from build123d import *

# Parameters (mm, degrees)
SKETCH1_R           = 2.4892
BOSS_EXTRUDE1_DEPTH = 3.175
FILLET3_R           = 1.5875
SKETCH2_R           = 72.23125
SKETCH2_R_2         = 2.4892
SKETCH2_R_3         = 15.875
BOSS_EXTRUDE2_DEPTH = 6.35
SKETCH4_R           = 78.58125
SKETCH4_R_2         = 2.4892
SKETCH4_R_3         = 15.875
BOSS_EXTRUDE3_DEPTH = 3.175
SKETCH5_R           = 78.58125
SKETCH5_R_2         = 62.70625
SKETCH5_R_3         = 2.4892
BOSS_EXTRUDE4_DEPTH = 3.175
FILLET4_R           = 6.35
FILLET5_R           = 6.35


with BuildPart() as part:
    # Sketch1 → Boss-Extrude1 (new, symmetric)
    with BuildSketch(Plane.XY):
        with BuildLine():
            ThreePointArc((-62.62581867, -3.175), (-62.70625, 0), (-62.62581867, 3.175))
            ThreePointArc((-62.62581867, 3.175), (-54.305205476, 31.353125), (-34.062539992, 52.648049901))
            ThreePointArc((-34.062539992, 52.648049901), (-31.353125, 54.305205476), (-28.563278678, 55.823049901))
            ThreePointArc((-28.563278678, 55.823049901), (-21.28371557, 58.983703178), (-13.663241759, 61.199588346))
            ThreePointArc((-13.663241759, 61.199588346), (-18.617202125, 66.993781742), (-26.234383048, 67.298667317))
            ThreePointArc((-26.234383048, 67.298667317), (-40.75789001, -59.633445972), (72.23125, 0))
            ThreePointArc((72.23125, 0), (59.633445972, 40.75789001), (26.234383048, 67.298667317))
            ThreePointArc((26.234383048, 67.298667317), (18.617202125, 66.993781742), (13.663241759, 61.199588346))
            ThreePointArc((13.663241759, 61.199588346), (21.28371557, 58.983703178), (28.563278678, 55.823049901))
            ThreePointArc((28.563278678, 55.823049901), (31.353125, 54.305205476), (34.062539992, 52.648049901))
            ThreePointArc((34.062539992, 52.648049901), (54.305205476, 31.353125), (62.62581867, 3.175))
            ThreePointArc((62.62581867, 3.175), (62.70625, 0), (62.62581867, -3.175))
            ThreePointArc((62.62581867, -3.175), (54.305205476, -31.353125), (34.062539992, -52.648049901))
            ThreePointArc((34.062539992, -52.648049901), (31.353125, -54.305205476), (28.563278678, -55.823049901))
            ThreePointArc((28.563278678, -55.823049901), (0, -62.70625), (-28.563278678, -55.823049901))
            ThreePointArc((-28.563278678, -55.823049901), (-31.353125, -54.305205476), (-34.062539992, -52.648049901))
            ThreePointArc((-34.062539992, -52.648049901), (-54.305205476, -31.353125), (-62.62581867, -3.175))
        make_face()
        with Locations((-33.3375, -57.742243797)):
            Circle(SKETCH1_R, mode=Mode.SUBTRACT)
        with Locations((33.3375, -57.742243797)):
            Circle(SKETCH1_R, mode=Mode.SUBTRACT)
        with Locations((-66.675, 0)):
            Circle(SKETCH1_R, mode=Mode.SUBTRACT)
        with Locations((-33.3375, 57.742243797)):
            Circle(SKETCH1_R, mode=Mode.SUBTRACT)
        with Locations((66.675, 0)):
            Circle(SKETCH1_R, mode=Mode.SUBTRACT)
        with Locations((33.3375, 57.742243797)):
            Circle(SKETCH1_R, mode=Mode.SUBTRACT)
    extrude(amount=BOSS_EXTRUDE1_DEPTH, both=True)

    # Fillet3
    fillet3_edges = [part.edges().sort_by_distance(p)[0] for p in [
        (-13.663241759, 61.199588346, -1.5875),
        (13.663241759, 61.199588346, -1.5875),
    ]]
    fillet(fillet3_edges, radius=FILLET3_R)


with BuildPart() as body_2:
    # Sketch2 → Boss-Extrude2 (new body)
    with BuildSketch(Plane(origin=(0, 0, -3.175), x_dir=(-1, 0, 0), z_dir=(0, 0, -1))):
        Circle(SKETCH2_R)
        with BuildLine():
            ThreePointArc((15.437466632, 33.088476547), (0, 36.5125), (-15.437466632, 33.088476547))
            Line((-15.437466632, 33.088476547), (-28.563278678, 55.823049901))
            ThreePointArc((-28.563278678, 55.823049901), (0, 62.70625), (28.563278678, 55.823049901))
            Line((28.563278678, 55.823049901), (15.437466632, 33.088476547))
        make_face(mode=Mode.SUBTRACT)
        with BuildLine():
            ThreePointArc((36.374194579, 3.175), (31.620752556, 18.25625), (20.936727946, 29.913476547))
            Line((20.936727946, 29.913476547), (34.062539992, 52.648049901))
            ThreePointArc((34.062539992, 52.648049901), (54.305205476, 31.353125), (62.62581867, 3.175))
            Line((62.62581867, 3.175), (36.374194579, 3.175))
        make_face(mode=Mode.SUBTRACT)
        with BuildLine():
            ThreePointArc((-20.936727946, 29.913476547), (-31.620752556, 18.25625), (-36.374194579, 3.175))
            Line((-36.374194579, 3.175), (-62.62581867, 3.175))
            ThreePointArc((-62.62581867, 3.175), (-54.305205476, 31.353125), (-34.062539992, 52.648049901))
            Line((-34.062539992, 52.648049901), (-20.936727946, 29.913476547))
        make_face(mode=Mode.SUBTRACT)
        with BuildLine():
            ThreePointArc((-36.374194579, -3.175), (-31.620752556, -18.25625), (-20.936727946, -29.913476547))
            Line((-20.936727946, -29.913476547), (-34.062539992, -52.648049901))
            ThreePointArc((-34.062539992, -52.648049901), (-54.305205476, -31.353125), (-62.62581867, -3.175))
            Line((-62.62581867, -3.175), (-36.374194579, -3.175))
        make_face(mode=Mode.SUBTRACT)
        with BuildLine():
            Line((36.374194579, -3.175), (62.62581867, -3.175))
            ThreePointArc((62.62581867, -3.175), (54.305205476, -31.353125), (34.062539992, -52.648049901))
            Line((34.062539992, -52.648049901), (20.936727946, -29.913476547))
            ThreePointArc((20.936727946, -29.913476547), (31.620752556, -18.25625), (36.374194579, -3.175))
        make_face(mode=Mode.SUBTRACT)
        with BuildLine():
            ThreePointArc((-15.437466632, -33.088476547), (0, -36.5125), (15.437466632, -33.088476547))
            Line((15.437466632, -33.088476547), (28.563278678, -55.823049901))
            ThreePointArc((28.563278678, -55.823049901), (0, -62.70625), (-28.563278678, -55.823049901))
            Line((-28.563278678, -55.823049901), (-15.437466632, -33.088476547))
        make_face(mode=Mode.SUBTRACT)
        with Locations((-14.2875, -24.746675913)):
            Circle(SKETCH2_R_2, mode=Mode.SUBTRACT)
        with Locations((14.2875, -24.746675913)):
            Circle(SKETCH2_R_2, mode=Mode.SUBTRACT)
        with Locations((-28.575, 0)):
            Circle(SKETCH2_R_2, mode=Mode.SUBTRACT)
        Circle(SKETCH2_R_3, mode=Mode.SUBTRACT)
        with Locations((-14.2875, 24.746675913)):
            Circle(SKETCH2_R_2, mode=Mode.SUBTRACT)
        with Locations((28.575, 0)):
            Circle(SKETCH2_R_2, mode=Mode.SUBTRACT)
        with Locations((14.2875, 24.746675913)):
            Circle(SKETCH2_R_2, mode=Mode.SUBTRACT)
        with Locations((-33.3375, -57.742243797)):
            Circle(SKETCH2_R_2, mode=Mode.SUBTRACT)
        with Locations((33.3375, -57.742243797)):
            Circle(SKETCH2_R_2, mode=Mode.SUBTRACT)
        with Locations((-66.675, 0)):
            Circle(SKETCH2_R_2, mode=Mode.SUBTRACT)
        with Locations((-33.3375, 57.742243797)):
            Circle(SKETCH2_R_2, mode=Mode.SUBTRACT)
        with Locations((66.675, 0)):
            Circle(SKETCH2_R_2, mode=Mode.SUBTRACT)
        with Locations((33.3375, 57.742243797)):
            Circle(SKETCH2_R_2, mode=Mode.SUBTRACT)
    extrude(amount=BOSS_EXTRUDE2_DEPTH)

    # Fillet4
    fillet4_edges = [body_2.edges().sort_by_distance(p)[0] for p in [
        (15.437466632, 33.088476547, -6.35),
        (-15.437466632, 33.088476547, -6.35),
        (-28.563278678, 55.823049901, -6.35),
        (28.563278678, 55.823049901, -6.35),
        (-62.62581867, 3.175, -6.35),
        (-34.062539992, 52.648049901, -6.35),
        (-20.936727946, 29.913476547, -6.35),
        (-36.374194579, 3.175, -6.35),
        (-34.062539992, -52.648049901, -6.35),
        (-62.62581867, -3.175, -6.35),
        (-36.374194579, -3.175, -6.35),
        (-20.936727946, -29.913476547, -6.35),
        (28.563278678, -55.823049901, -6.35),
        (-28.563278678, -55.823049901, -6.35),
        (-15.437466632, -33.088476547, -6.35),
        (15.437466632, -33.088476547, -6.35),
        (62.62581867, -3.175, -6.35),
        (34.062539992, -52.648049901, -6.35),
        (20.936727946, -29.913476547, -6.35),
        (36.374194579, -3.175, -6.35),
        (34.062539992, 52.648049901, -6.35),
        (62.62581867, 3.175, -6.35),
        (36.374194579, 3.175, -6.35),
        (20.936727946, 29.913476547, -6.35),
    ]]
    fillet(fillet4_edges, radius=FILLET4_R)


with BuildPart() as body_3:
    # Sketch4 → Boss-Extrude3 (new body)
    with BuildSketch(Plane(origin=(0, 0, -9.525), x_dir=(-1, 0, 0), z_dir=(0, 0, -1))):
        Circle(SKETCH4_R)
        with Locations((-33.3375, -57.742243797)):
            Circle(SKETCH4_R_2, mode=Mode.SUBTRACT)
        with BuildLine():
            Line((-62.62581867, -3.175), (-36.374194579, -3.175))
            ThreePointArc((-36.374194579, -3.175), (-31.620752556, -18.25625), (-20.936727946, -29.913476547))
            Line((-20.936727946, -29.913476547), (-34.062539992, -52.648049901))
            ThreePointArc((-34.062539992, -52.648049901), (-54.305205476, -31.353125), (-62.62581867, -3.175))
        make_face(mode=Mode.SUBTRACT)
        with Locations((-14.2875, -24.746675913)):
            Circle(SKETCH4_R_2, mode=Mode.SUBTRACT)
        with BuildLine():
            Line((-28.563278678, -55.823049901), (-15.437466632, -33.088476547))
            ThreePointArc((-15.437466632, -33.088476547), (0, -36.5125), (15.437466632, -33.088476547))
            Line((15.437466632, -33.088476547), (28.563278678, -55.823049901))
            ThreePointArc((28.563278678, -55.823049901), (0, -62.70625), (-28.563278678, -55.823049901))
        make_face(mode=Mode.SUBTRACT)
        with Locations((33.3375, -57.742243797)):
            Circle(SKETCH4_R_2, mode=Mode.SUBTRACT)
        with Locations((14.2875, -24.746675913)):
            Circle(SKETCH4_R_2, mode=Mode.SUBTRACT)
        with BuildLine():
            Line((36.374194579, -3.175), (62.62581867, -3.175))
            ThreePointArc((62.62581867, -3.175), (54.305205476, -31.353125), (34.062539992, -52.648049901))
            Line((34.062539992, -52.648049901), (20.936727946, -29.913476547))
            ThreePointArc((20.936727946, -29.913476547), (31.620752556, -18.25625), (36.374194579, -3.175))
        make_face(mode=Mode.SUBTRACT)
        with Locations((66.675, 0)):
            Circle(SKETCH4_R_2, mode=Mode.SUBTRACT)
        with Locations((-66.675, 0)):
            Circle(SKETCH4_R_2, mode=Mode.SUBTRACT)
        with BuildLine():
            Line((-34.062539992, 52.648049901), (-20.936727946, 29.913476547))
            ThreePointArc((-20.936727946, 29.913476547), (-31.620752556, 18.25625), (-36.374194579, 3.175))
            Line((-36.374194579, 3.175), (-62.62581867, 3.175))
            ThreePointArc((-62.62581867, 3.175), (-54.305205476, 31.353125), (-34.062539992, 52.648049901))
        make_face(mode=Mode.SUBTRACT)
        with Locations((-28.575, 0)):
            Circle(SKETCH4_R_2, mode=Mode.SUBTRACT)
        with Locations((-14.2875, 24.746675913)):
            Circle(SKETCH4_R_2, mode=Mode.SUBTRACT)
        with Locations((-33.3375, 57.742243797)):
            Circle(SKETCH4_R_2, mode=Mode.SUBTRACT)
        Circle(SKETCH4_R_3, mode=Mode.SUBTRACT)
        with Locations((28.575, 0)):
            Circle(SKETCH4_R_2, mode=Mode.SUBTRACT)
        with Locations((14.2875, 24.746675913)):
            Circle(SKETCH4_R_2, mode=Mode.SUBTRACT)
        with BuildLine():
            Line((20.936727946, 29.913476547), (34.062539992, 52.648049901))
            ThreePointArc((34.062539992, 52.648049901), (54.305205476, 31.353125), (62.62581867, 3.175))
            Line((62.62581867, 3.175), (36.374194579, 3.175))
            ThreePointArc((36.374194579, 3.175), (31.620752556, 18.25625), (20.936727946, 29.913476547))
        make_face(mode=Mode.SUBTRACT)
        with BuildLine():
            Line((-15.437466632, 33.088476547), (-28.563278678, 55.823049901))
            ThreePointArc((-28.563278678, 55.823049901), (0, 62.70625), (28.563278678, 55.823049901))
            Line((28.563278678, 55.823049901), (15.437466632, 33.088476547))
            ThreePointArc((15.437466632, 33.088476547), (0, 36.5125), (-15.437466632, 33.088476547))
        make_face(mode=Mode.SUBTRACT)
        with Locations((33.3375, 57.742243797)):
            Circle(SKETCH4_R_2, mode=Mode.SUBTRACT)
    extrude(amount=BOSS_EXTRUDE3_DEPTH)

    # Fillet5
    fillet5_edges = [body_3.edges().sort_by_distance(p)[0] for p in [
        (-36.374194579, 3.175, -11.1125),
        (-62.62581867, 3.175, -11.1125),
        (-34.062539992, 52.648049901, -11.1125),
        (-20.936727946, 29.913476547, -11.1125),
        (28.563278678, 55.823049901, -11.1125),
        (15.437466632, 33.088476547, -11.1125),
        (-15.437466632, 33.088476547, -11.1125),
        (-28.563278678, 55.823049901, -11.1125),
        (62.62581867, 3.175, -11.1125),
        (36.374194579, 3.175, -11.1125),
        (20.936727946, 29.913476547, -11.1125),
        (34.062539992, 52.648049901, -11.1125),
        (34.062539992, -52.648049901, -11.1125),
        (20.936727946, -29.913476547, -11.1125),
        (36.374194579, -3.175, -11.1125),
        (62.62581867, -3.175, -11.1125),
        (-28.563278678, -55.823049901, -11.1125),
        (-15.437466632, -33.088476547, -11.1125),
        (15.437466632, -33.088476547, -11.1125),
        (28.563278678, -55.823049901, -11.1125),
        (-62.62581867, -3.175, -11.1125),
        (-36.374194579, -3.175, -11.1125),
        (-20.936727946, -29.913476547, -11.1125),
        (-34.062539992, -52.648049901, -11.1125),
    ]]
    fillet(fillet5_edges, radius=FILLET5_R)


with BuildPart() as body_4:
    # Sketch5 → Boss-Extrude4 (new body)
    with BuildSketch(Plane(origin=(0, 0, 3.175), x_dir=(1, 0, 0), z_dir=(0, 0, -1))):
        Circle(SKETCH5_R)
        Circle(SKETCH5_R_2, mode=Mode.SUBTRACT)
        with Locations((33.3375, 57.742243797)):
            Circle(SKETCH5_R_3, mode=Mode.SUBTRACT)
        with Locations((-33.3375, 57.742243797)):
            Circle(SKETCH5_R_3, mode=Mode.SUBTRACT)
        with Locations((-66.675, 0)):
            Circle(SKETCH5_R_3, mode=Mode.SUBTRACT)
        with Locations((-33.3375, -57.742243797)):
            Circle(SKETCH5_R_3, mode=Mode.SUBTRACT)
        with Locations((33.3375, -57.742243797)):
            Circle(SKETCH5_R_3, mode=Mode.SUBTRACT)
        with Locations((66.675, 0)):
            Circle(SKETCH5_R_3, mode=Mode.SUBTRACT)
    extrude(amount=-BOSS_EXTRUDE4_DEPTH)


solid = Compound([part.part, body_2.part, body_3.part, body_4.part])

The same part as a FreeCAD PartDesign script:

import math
import FreeCAD as App
import Part
import Sketcher
from FreeCAD import Vector
Q = App.Units.Quantity


def edges_at(feature, points):
    """Names of the edges that pass closest to the given points."""
    edges = feature.Shape.Edges
    near = lambda p: min(range(len(edges)), key=lambda i: edges[i].distToShape(Part.Vertex(*p))[0])
    return sorted({f"Edge{near(p) + 1}" for p in points})

doc = App.newDocument("Part")
body = doc.addObject("PartDesign::Body", "Body")

sketch1 = body.newObject("Sketcher::SketchObject", "Sketch")
sketch1.AttachmentSupport = (doc.getObject("XY_Plane"), [""])
sketch1.MapMode = "FlatFace"
sketch1.addGeometry([
    Part.ArcOfCircle(Part.Circle(Vector(0, 0, 0), Vector(0, 0, 1), 62.7), math.radians(177.1), math.radians(182.9)),
    Part.ArcOfCircle(Part.Circle(Vector(0, 0, 0), Vector(0, 0, 1), 62.7), math.radians(123), math.radians(177)),
    Part.ArcOfCircle(Part.Circle(Vector(0, 0, 0), Vector(0, 0, 1), 62.7), math.radians(117.1), math.radians(122.9)),
    Part.ArcOfCircle(Part.Circle(Vector(0, 0, 0), Vector(0, 0, 1), 62.7), math.radians(102.59), math.radians(117.1)),
    Part.ArcOfCircle(Part.Circle(Vector(-22.8, 58.4, 0), Vector(0, 0, 1), 9.5), math.radians(17), math.radians(111)),
    Part.ArcOfCircle(Part.Circle(Vector(0, 0, 0), Vector(0, 0, 1), 72.2), math.radians(111), math.radians(360)),
    Part.ArcOfCircle(Part.Circle(Vector(0, 0, 0), Vector(0, 0, 1), 72.2), math.radians(0), math.radians(69)),
    Part.ArcOfCircle(Part.Circle(Vector(22.8, 58.4, 0), Vector(0, 0, 1), 9.5), math.radians(69), math.radians(163)),
    Part.ArcOfCircle(Part.Circle(Vector(0, 0, 0), Vector(0, 0, 1), 62.7), math.radians(62.9), math.radians(77.41)),
    Part.ArcOfCircle(Part.Circle(Vector(0, 0, 0), Vector(0, 0, 1), 62.7), math.radians(57.1), math.radians(62.9)),
    Part.ArcOfCircle(Part.Circle(Vector(0, 0, 0), Vector(0, 0, 1), 62.7), math.radians(3), math.radians(57)),
    Part.ArcOfCircle(Part.Circle(Vector(0, 0, 0), Vector(0, 0, 1), 62.7), math.radians(-2.9), math.radians(2.9)),
    Part.ArcOfCircle(Part.Circle(Vector(0, 0, 0), Vector(0, 0, 1), 62.7), math.radians(-57), math.radians(-3)),
    Part.ArcOfCircle(Part.Circle(Vector(0, 0, 0), Vector(0, 0, 1), 62.7), math.radians(-62.9), math.radians(-57.1)),
    Part.ArcOfCircle(Part.Circle(Vector(0, 0, 0), Vector(0, 0, 1), 62.7), math.radians(-117), math.radians(-63)),
    Part.ArcOfCircle(Part.Circle(Vector(0, 0, 0), Vector(0, 0, 1), 62.7), math.radians(-122.9), math.radians(-117.1)),
    Part.ArcOfCircle(Part.Circle(Vector(0, 0, 0), Vector(0, 0, 1), 62.7), math.radians(-177), math.radians(-123)),
    Part.Circle(Vector(-33.3, -57.7, 0), Vector(0, 0, 1), 2.5),
    Part.Circle(Vector(-66.7, 0, 0), Vector(0, 0, 1), 2.5),
    Part.Circle(Vector(33.3, -57.7, 0), Vector(0, 0, 1), 2.5),
    Part.Circle(Vector(66.7, 0, 0), Vector(0, 0, 1), 2.5),
    Part.Circle(Vector(-33.3, 57.7, 0), Vector(0, 0, 1), 2.5),
    Part.Circle(Vector(33.3, 57.7, 0), Vector(0, 0, 1), 2.5),
], False)
sketch1.addConstraint([
    Sketcher.Constraint("Tangent", 0, 1, 1, 2),
    Sketcher.Constraint("Tangent", 1, 1, 2, 2),
    Sketcher.Constraint("Tangent", 2, 1, 3, 2),
    Sketcher.Constraint("Coincident", 3, 1, 4, 1),
    Sketcher.Constraint("Tangent", 4, 2, 5, 1),
    Sketcher.Constraint("Tangent", 5, 2, 6, 1),
    Sketcher.Constraint("Tangent", 6, 2, 7, 1),
    Sketcher.Constraint("Coincident", 7, 2, 8, 2),
    Sketcher.Constraint("Tangent", 8, 1, 9, 2),
    Sketcher.Constraint("Tangent", 9, 1, 10, 2),
    Sketcher.Constraint("Tangent", 10, 1, 11, 2),
    Sketcher.Constraint("Tangent", 11, 1, 12, 2),
    Sketcher.Constraint("Tangent", 12, 1, 13, 2),
    Sketcher.Constraint("Tangent", 13, 1, 14, 2),
    Sketcher.Constraint("Tangent", 14, 1, 15, 2),
    Sketcher.Constraint("Tangent", 15, 1, 16, 2),
    Sketcher.Constraint("Tangent", 16, 1, 0, 2),
    Sketcher.Constraint("Coincident", 0, 3, -1, 1),
    Sketcher.Constraint("Coincident", 2, 3, -1, 1),
    Sketcher.Constraint("Coincident", 5, 3, -1, 1),
    Sketcher.Constraint("Coincident", 8, 3, -1, 1),
    Sketcher.Constraint("Coincident", 10, 3, -1, 1),
    Sketcher.Constraint("Coincident", 12, 3, -1, 1),
    Sketcher.Constraint("Coincident", 14, 3, -1, 1),
    Sketcher.Constraint("Equal", 2, 3),
    Sketcher.Constraint("Equal", 5, 6),
    Sketcher.Constraint("Equal", 4, 7),
    Sketcher.Constraint("Equal", 3, 8),
    Sketcher.Constraint("Equal", 17, 18),
    Sketcher.Constraint("Equal", 18, 19),
    Sketcher.Constraint("Equal", 19, 20),
    Sketcher.Constraint("Equal", 20, 21),
    Sketcher.Constraint("Equal", 21, 22),
    Sketcher.Constraint("Symmetric", 18, 3, 20, 3, -1, 1),
    Sketcher.Constraint("Symmetric", 19, 3, 21, 3, -1, 1),
    Sketcher.Constraint("Symmetric", 17, 3, 22, 3, -1, 1),
    Sketcher.Constraint("Symmetric", 17, 3, 19, 3, -2),
    Sketcher.Constraint("PointOnObject", 18, 3, -1),
    Sketcher.Constraint("PointOnObject", 5, 2, -1),
    Sketcher.Constraint("Horizontal", 4, 3, 7, 3),
    Sketcher.Constraint("Horizontal", 2, 1, 8, 1),
    Sketcher.Constraint("Horizontal", 1, 1, 9, 1),
    Sketcher.Constraint("Horizontal", 0, 1, 10, 1),
    Sketcher.Constraint("Horizontal", 13, 1, 14, 1),
    Sketcher.Constraint("Horizontal", 12, 1, 15, 1),
    Sketcher.Constraint("Horizontal", 11, 1, 16, 1),
    Sketcher.Constraint("Vertical", 10, 1, 11, 1),
    Sketcher.Constraint("Vertical", 9, 1, 12, 1),
    Sketcher.Constraint("Vertical", 8, 1, 13, 1),
    Sketcher.Constraint("Diameter", 17, Q("0.196 in")),
    Sketcher.Constraint("Radius", 0, Q("2.46875 in")),
    Sketcher.Constraint("Radius", 4, Q("0.375 in")),
    Sketcher.Constraint("Radius", 5, Q("2.84375 in")),
    Sketcher.Constraint("DistanceY", 11, 1, 10, 1, Q("0.25 in")),
    Sketcher.Constraint("DistanceX", 17, 3, -1, 1, Q("1.3125 in")),
    Sketcher.Constraint("DistanceX", 18, 3, -1, 1, Q("2.625 in")),
    Sketcher.Constraint("DistanceY", 1, 1, 2, 1, Q("0.125 in")),
    Sketcher.Constraint("DistanceX", 4, 2, 4, 3, Q("0.1362 in")),
    Sketcher.Constraint("DistanceX", 1, 1, 3, 1, Q("20.399298 mm")),
    Sketcher.Constraint("DistanceY", 17, 3, -1, 1, Q("57.742244 mm")),
])
pad1 = body.newObject("PartDesign::Pad", "Pad")
pad1.Profile = sketch1
pad1.Length = Q("0.25 in")
pad1.Midplane = True
doc.recompute()

fillet = body.newObject("PartDesign::Fillet", "Fillet")
fillet.Base = (pad1, edges_at(pad1, [(-13.663, 61.2, 0), (13.663, 61.2, 0)]))
fillet.Radius = Q("0.0625 in")
body2 = doc.addObject("PartDesign::Body", "Body001")

sketch2 = body2.newObject("Sketcher::SketchObject", "Sketch001")
sketch2.AttachmentSupport = (doc.getObject("XY_Plane001"), [""])
sketch2.MapMode = "FlatFace"
sketch2.AttachmentOffset = App.Placement(Vector(0, 0, -0.125 * 25.4), App.Rotation())
sketch2.addGeometry([
    Part.Circle(Vector(0, 0, 0), Vector(0, 0, 1), 72.2),
    Part.Circle(Vector(33.3, -57.7, 0), Vector(0, 0, 1), 2.5),
    Part.LineSegment(Vector(62.6, -3.2, 0), Vector(36.4, -3.2, 0)),
    Part.ArcOfCircle(Part.Circle(Vector(0, 0, 0), Vector(0, 0, 1), 36.5), math.radians(-55), math.radians(-5)),
    Part.LineSegment(Vector(20.9, -29.9, 0), Vector(34.1, -52.6, 0)),
    Part.ArcOfCircle(Part.Circle(Vector(0, 0, 0), Vector(0, 0, 1), 62.7), math.radians(-57), math.radians(-3)),
    Part.Circle(Vector(14.3, -24.7, 0), Vector(0, 0, 1), 2.5),
    Part.LineSegment(Vector(28.6, -55.8, 0), Vector(15.4, -33.1, 0)),
    Part.ArcOfCircle(Part.Circle(Vector(0, 0, 0), Vector(0, 0, 1), 36.5), math.radians(-115), math.radians(-65)),
    Part.LineSegment(Vector(-15.4, -33.1, 0), Vector(-28.6, -55.8, 0)),
    Part.ArcOfCircle(Part.Circle(Vector(0, 0, 0), Vector(0, 0, 1), 62.7), math.radians(-117), math.radians(-63)),
    Part.Circle(Vector(-33.3, -57.7, 0), Vector(0, 0, 1), 2.5),
    Part.Circle(Vector(-14.3, -24.7, 0), Vector(0, 0, 1), 2.5),
    Part.ArcOfCircle(Part.Circle(Vector(0, 0, 0), Vector(0, 0, 1), 36.5), math.radians(-175), math.radians(-125)),
    Part.LineSegment(Vector(-36.4, -3.2, 0), Vector(-62.6, -3.2, 0)),
    Part.ArcOfCircle(Part.Circle(Vector(0, 0, 0), Vector(0, 0, 1), 62.7), math.radians(-177), math.radians(-123)),
    Part.LineSegment(Vector(-34.1, -52.6, 0), Vector(-20.9, -29.9, 0)),
    Part.Circle(Vector(66.7, 0, 0), Vector(0, 0, 1), 2.5),
    Part.LineSegment(Vector(34.1, 52.6, 0), Vector(20.9, 29.9, 0)),
    Part.ArcOfCircle(Part.Circle(Vector(0, 0, 0), Vector(0, 0, 1), 36.5), math.radians(5), math.radians(55)),
    Part.LineSegment(Vector(36.4, 3.2, 0), Vector(62.6, 3.2, 0)),
    Part.ArcOfCircle(Part.Circle(Vector(0, 0, 0), Vector(0, 0, 1), 62.7), math.radians(3), math.radians(57)),
    Part.Circle(Vector(28.6, 0, 0), Vector(0, 0, 1), 2.5),
    Part.Circle(Vector(14.3, 24.7, 0), Vector(0, 0, 1), 2.5),
    Part.Circle(Vector(33.3, 57.7, 0), Vector(0, 0, 1), 2.5),
    Part.Circle(Vector(0, 0, 0), Vector(0, 0, 1), 15.9),
    Part.Circle(Vector(-28.6, 0, 0), Vector(0, 0, 1), 2.5),
    Part.Circle(Vector(-14.3, 24.7, 0), Vector(0, 0, 1), 2.5),
    Part.Circle(Vector(-66.7, 0, 0), Vector(0, 0, 1), 2.5),
    Part.LineSegment(Vector(-62.6, 3.2, 0), Vector(-36.4, 3.2, 0)),
    Part.ArcOfCircle(Part.Circle(Vector(0, 0, 0), Vector(0, 0, 1), 36.5), math.radians(125), math.radians(175)),
    Part.LineSegment(Vector(-20.9, 29.9, 0), Vector(-34.1, 52.6, 0)),
    Part.ArcOfCircle(Part.Circle(Vector(0, 0, 0), Vector(0, 0, 1), 62.7), math.radians(123), math.radians(177)),
    Part.LineSegment(Vector(-28.6, 55.8, 0), Vector(-15.4, 33.1, 0)),
    Part.ArcOfCircle(Part.Circle(Vector(0, 0, 0), Vector(0, 0, 1), 36.5), math.radians(65), math.radians(115)),
    Part.LineSegment(Vector(15.4, 33.1, 0), Vector(28.6, 55.8, 0)),
    Part.ArcOfCircle(Part.Circle(Vector(0, 0, 0), Vector(0, 0, 1), 62.7), math.radians(63), math.radians(117)),
    Part.Circle(Vector(-33.3, 57.7, 0), Vector(0, 0, 1), 2.5),
], False)
sketch2.addConstraint([
    Sketcher.Constraint("Coincident", 2, 2, 3, 2),
    Sketcher.Constraint("Coincident", 3, 1, 4, 1),
    Sketcher.Constraint("Coincident", 4, 2, 5, 1),
    Sketcher.Constraint("Coincident", 5, 2, 2, 1),
    Sketcher.Constraint("Coincident", 7, 2, 8, 2),
    Sketcher.Constraint("Coincident", 8, 1, 9, 1),
    Sketcher.Constraint("Coincident", 9, 2, 10, 1),
    Sketcher.Constraint("Coincident", 10, 2, 7, 1),
    Sketcher.Constraint("Coincident", 13, 1, 14, 1),
    Sketcher.Constraint("Coincident", 14, 2, 15, 1),
    Sketcher.Constraint("Coincident", 15, 2, 16, 1),
    Sketcher.Constraint("Coincident", 16, 2, 13, 2),
    Sketcher.Constraint("Coincident", 18, 2, 19, 2),
    Sketcher.Constraint("Coincident", 19, 1, 20, 1),
    Sketcher.Constraint("Coincident", 20, 2, 21, 1),
    Sketcher.Constraint("Coincident", 21, 2, 18, 1),
    Sketcher.Constraint("Coincident", 29, 2, 30, 2),
    Sketcher.Constraint("Coincident", 30, 1, 31, 1),
    Sketcher.Constraint("Coincident", 31, 2, 32, 1),
    Sketcher.Constraint("Coincident", 32, 2, 29, 1),
    Sketcher.Constraint("Coincident", 33, 2, 34, 2),
    Sketcher.Constraint("Coincident", 34, 1, 35, 1),
    Sketcher.Constraint("Coincident", 35, 2, 36, 1),
    Sketcher.Constraint("Coincident", 36, 2, 33, 1),
    Sketcher.Constraint("Horizontal", 2),
    Sketcher.Constraint("Horizontal", 14),
    Sketcher.Constraint("Horizontal", 20),
    Sketcher.Constraint("Horizontal", 29),
    Sketcher.Constraint("Coincident", 0, 3, -1, 1),
    Sketcher.Constraint("Coincident", 3, 3, -1, 1),
    Sketcher.Constraint("Coincident", 5, 3, -1, 1),
    Sketcher.Constraint("Coincident", 8, 3, -1, 1),
    Sketcher.Constraint("Coincident", 10, 3, -1, 1),
    Sketcher.Constraint("Coincident", 13, 3, -1, 1),
    Sketcher.Constraint("Coincident", 15, 3, -1, 1),
    Sketcher.Constraint("Coincident", 19, 3, -1, 1),
    Sketcher.Constraint("Coincident", 21, 3, -1, 1),
    Sketcher.Constraint("Coincident", 25, 3, -1, 1),
    Sketcher.Constraint("Coincident", 30, 3, -1, 1),
    Sketcher.Constraint("Coincident", 32, 3, -1, 1),
    Sketcher.Constraint("Coincident", 34, 3, -1, 1),
    Sketcher.Constraint("Coincident", 36, 3, -1, 1),
    Sketcher.Constraint("Equal", 1, 6),
    Sketcher.Constraint("Equal", 3, 8),
    Sketcher.Constraint("Equal", 5, 10),
    Sketcher.Constraint("Equal", 6, 11),
    Sketcher.Constraint("Equal", 11, 12),
    Sketcher.Constraint("Equal", 8, 13),
    Sketcher.Constraint("Equal", 10, 15),
    Sketcher.Constraint("Equal", 12, 17),
    Sketcher.Constraint("Equal", 13, 19),
    Sketcher.Constraint("Equal", 15, 21),
    Sketcher.Constraint("Equal", 17, 22),
    Sketcher.Constraint("Equal", 22, 23),
    Sketcher.Constraint("Equal", 23, 24),
    Sketcher.Constraint("Equal", 24, 26),
    Sketcher.Constraint("Equal", 26, 27),
    Sketcher.Constraint("Equal", 27, 28),
    Sketcher.Constraint("Equal", 19, 30),
    Sketcher.Constraint("Equal", 21, 32),
    Sketcher.Constraint("Equal", 30, 34),
    Sketcher.Constraint("Equal", 32, 36),
    Sketcher.Constraint("Equal", 28, 37),
    Sketcher.Constraint("Symmetric", 12, 3, 23, 3, -1, 1),
    Sketcher.Constraint("Symmetric", 11, 3, 24, 3, -1, 1),
    Sketcher.Constraint("Symmetric", 22, 3, 26, 3, -1, 1),
    Sketcher.Constraint("Symmetric", 6, 3, 27, 3, -1, 1),
    Sketcher.Constraint("Symmetric", 17, 3, 28, 3, -1, 1),
    Sketcher.Constraint("Symmetric", 1, 3, 37, 3, -1, 1),
    Sketcher.Constraint("Symmetric", 1, 3, 11, 3, -2),
    Sketcher.Constraint("Symmetric", 6, 3, 12, 3, -2),
    Sketcher.Constraint("PointOnObject", 17, 3, -1),
    Sketcher.Constraint("PointOnObject", 22, 3, -1),
    Sketcher.Constraint("Parallel", 4, 7),
    Sketcher.Constraint("Parallel", 9, 16),
    Sketcher.Constraint("Parallel", 16, 18),
    Sketcher.Constraint("Parallel", 7, 31),
    Sketcher.Constraint("Parallel", 31, 33),
    Sketcher.Constraint("Parallel", 18, 35),
    Sketcher.Constraint("Horizontal", 7, 2, 8, 1),
    Sketcher.Constraint("Horizontal", 9, 2, 10, 2),
    Sketcher.Constraint("Horizontal", 5, 2, 13, 1),
    Sketcher.Constraint("Horizontal", 4, 2, 15, 2),
    Sketcher.Constraint("Horizontal", 20, 2, 29, 2),
    Sketcher.Constraint("Horizontal", 18, 2, 30, 1),
    Sketcher.Constraint("Horizontal", 33, 2, 34, 1),
    Sketcher.Constraint("Vertical", 3, 1, 18, 2),
    Sketcher.Constraint("Vertical", 2, 2, 19, 1),
    Sketcher.Constraint("Vertical", 8, 1, 33, 2),
    Sketcher.Constraint("Equal", 4, 7),
    Sketcher.Constraint("Diameter", 25, Q("1.25 in")),
    Sketcher.Constraint("Diameter", 0, Q("5.6875 in")),
    Sketcher.Constraint("Diameter", 1, Q("0.196 in")),
    Sketcher.Constraint("Angle", 4, Q("-60 deg")),
    Sketcher.Constraint("Radius", 3, Q("1.4375 in")),
    Sketcher.Constraint("Radius", 5, Q("2.46875 in")),
    Sketcher.Constraint("DistanceX", 28, 3, 26, 3, Q("1.5 in")),
    Sketcher.Constraint("DistanceX", 6, 3, 1, 3, Q("0.75 in")),
    Sketcher.Constraint("DistanceY", 2, 2, 19, 1, Q("0.25 in")),
    Sketcher.Constraint("DistanceX", -1, 1, 1, 3, Q("1.3125 in")),
    Sketcher.Constraint("DistanceX", -1, 1, 17, 3, Q("2.625 in")),
    Sketcher.Constraint("DistanceY", 7, 2, 3, 1, Q("0.125 in")),
    Sketcher.Constraint("DistanceY", 3, 1, 6, 3, Q("5.166801 mm")),
    Sketcher.Constraint("DistanceY", 1, 3, -1, 1, Q("57.742244 mm")),
])
pad2 = body2.newObject("PartDesign::Pad", "Pad001")
pad2.Profile = sketch2
pad2.Length = Q("0.25 in")
pad2.Reversed = True
doc.recompute()

fillet2 = body2.newObject("PartDesign::Fillet", "Fillet001")
fillet2.Base = (pad2, edges_at(pad2, [
    (15.437, 33.088, -6.35),
    (-15.437, 33.088, -6.35),
    (-28.563, 55.823, -6.35),
    (28.563, 55.823, -6.35),
    (-62.626, 3.175, -6.35),
    (-34.063, 52.648, -6.35),
    (-20.937, 29.913, -6.35),
    (-36.374, 3.175, -6.35),
    (-34.063, -52.648, -6.35),
    (-62.626, -3.175, -6.35),
    (-36.374, -3.175, -6.35),
    (-20.937, -29.913, -6.35),
    (28.563, -55.823, -6.35),
    (-28.563, -55.823, -6.35),
    (-15.437, -33.088, -6.35),
    (15.437, -33.088, -6.35),
    (62.626, -3.175, -6.35),
    (34.063, -52.648, -6.35),
    (20.937, -29.913, -6.35),
    (36.374, -3.175, -6.35),
    (34.063, 52.648, -6.35),
    (62.626, 3.175, -6.35),
    (36.374, 3.175, -6.35),
    (20.937, 29.913, -6.35),
]))
fillet2.Radius = Q("0.25 in")
body3 = doc.addObject("PartDesign::Body", "Body002")

sketch3 = body3.newObject("Sketcher::SketchObject", "Sketch002")
sketch3.AttachmentSupport = (doc.getObject("XY_Plane002"), [""])
sketch3.MapMode = "FlatFace"
sketch3.AttachmentOffset = App.Placement(Vector(0, 0, -0.375 * 25.4), App.Rotation())
sketch3.addGeometry([
    Part.Circle(Vector(0, 0, 0), Vector(0, 0, 1), 78.6),
    Part.Circle(Vector(33.3, -57.7, 0), Vector(0, 0, 1), 2.5),
    Part.ArcOfCircle(Part.Circle(Vector(0, 0, 0), Vector(0, 0, 1), 62.7), math.radians(-57), math.radians(-3)),
    Part.LineSegment(Vector(62.6, -3.2, 0), Vector(36.4, -3.2, 0)),
    Part.ArcOfCircle(Part.Circle(Vector(0, 0, 0), Vector(0, 0, 1), 36.5), math.radians(-55), math.radians(-5)),
    Part.LineSegment(Vector(20.9, -29.9, 0), Vector(34.1, -52.6, 0)),
    Part.Circle(Vector(14.3, -24.7, 0), Vector(0, 0, 1), 2.5),
    Part.ArcOfCircle(Part.Circle(Vector(0, 0, 0), Vector(0, 0, 1), 62.7), math.radians(-117), math.radians(-63)),
    Part.LineSegment(Vector(28.6, -55.8, 0), Vector(15.4, -33.1, 0)),
    Part.ArcOfCircle(Part.Circle(Vector(0, 0, 0), Vector(0, 0, 1), 36.5), math.radians(-115), math.radians(-65)),
    Part.LineSegment(Vector(-15.4, -33.1, 0), Vector(-28.6, -55.8, 0)),
    Part.Circle(Vector(-33.3, -57.7, 0), Vector(0, 0, 1), 2.5),
    Part.Circle(Vector(-14.3, -24.7, 0), Vector(0, 0, 1), 2.5),
    Part.ArcOfCircle(Part.Circle(Vector(0, 0, 0), Vector(0, 0, 1), 36.5), math.radians(-175), math.radians(-125)),
    Part.LineSegment(Vector(-36.4, -3.2, 0), Vector(-62.6, -3.2, 0)),
    Part.ArcOfCircle(Part.Circle(Vector(0, 0, 0), Vector(0, 0, 1), 62.7), math.radians(-177), math.radians(-123)),
    Part.LineSegment(Vector(-34.1, -52.6, 0), Vector(-20.9, -29.9, 0)),
    Part.Circle(Vector(66.7, 0, 0), Vector(0, 0, 1), 2.5),
    Part.ArcOfCircle(Part.Circle(Vector(0, 0, 0), Vector(0, 0, 1), 62.7), math.radians(3), math.radians(57)),
    Part.LineSegment(Vector(34.1, 52.6, 0), Vector(20.9, 29.9, 0)),
    Part.ArcOfCircle(Part.Circle(Vector(0, 0, 0), Vector(0, 0, 1), 36.5), math.radians(5), math.radians(55)),
    Part.LineSegment(Vector(36.4, 3.2, 0), Vector(62.6, 3.2, 0)),
    Part.Circle(Vector(28.6, 0, 0), Vector(0, 0, 1), 2.5),
    Part.Circle(Vector(14.3, 24.7, 0), Vector(0, 0, 1), 2.5),
    Part.Circle(Vector(33.3, 57.7, 0), Vector(0, 0, 1), 2.5),
    Part.Circle(Vector(0, 0, 0), Vector(0, 0, 1), 15.9),
    Part.Circle(Vector(-28.6, 0, 0), Vector(0, 0, 1), 2.5),
    Part.Circle(Vector(-14.3, 24.7, 0), Vector(0, 0, 1), 2.5),
    Part.Circle(Vector(-66.7, 0, 0), Vector(0, 0, 1), 2.5),
    Part.ArcOfCircle(Part.Circle(Vector(0, 0, 0), Vector(0, 0, 1), 36.5), math.radians(125), math.radians(175)),
    Part.LineSegment(Vector(-20.9, 29.9, 0), Vector(-34.1, 52.6, 0)),
    Part.ArcOfCircle(Part.Circle(Vector(0, 0, 0), Vector(0, 0, 1), 62.7), math.radians(123), math.radians(177)),
    Part.LineSegment(Vector(-62.6, 3.2, 0), Vector(-36.4, 3.2, 0)),
    Part.ArcOfCircle(Part.Circle(Vector(0, 0, 0), Vector(0, 0, 1), 36.5), math.radians(65), math.radians(115)),
    Part.LineSegment(Vector(15.4, 33.1, 0), Vector(28.6, 55.8, 0)),
    Part.ArcOfCircle(Part.Circle(Vector(0, 0, 0), Vector(0, 0, 1), 62.7), math.radians(63), math.radians(117)),
    Part.LineSegment(Vector(-28.6, 55.8, 0), Vector(-15.4, 33.1, 0)),
    Part.Circle(Vector(-33.3, 57.7, 0), Vector(0, 0, 1), 2.5),
], False)
sketch3.addConstraint([
    Sketcher.Constraint("Coincident", 2, 2, 3, 1),
    Sketcher.Constraint("Coincident", 3, 2, 4, 2),
    Sketcher.Constraint("Coincident", 4, 1, 5, 1),
    Sketcher.Constraint("Coincident", 5, 2, 2, 1),
    Sketcher.Constraint("Coincident", 7, 2, 8, 1),
    Sketcher.Constraint("Coincident", 8, 2, 9, 2),
    Sketcher.Constraint("Coincident", 9, 1, 10, 1),
    Sketcher.Constraint("Coincident", 10, 2, 7, 1),
    Sketcher.Constraint("Coincident", 13, 1, 14, 1),
    Sketcher.Constraint("Coincident", 14, 2, 15, 1),
    Sketcher.Constraint("Coincident", 15, 2, 16, 1),
    Sketcher.Constraint("Coincident", 16, 2, 13, 2),
    Sketcher.Constraint("Coincident", 18, 2, 19, 1),
    Sketcher.Constraint("Coincident", 19, 2, 20, 2),
    Sketcher.Constraint("Coincident", 20, 1, 21, 1),
    Sketcher.Constraint("Coincident", 21, 2, 18, 1),
    Sketcher.Constraint("Coincident", 29, 1, 30, 1),
    Sketcher.Constraint("Coincident", 30, 2, 31, 1),
    Sketcher.Constraint("Coincident", 31, 2, 32, 1),
    Sketcher.Constraint("Coincident", 32, 2, 29, 2),
    Sketcher.Constraint("Coincident", 33, 1, 34, 1),
    Sketcher.Constraint("Coincident", 34, 2, 35, 1),
    Sketcher.Constraint("Coincident", 35, 2, 36, 1),
    Sketcher.Constraint("Coincident", 36, 2, 33, 2),
    Sketcher.Constraint("Horizontal", 3),
    Sketcher.Constraint("Horizontal", 14),
    Sketcher.Constraint("Horizontal", 21),
    Sketcher.Constraint("Horizontal", 32),
    Sketcher.Constraint("Coincident", 0, 3, -1, 1),
    Sketcher.Constraint("Coincident", 2, 3, -1, 1),
    Sketcher.Constraint("Coincident", 4, 3, -1, 1),
    Sketcher.Constraint("Coincident", 7, 3, -1, 1),
    Sketcher.Constraint("Coincident", 9, 3, -1, 1),
    Sketcher.Constraint("Coincident", 13, 3, -1, 1),
    Sketcher.Constraint("Coincident", 15, 3, -1, 1),
    Sketcher.Constraint("Coincident", 18, 3, -1, 1),
    Sketcher.Constraint("Coincident", 20, 3, -1, 1),
    Sketcher.Constraint("Coincident", 25, 3, -1, 1),
    Sketcher.Constraint("Coincident", 29, 3, -1, 1),
    Sketcher.Constraint("Coincident", 31, 3, -1, 1),
    Sketcher.Constraint("Coincident", 33, 3, -1, 1),
    Sketcher.Constraint("Coincident", 35, 3, -1, 1),
    Sketcher.Constraint("Equal", 1, 6),
    Sketcher.Constraint("Equal", 2, 7),
    Sketcher.Constraint("Equal", 4, 9),
    Sketcher.Constraint("Equal", 6, 11),
    Sketcher.Constraint("Equal", 11, 12),
    Sketcher.Constraint("Equal", 9, 13),
    Sketcher.Constraint("Equal", 7, 15),
    Sketcher.Constraint("Equal", 12, 17),
    Sketcher.Constraint("Equal", 15, 18),
    Sketcher.Constraint("Equal", 13, 20),
    Sketcher.Constraint("Equal", 17, 22),
    Sketcher.Constraint("Equal", 22, 23),
    Sketcher.Constraint("Equal", 23, 24),
    Sketcher.Constraint("Equal", 24, 26),
    Sketcher.Constraint("Equal", 26, 27),
    Sketcher.Constraint("Equal", 27, 28),
    Sketcher.Constraint("Equal", 20, 29),
    Sketcher.Constraint("Equal", 18, 31),
    Sketcher.Constraint("Equal", 29, 33),
    Sketcher.Constraint("Equal", 31, 35),
    Sketcher.Constraint("Equal", 28, 37),
    Sketcher.Constraint("Symmetric", 12, 3, 23, 3, -1, 1),
    Sketcher.Constraint("Symmetric", 11, 3, 24, 3, -1, 1),
    Sketcher.Constraint("Symmetric", 22, 3, 26, 3, -1, 1),
    Sketcher.Constraint("Symmetric", 6, 3, 27, 3, -1, 1),
    Sketcher.Constraint("Symmetric", 17, 3, 28, 3, -1, 1),
    Sketcher.Constraint("Symmetric", 1, 3, 37, 3, -1, 1),
    Sketcher.Constraint("Symmetric", 1, 3, 11, 3, -2),
    Sketcher.Constraint("Symmetric", 6, 3, 12, 3, -2),
    Sketcher.Constraint("PointOnObject", 17, 3, -1),
    Sketcher.Constraint("PointOnObject", 22, 3, -1),
    Sketcher.Constraint("Parallel", 5, 8),
    Sketcher.Constraint("Parallel", 10, 16),
    Sketcher.Constraint("Parallel", 16, 19),
    Sketcher.Constraint("Parallel", 8, 30),
    Sketcher.Constraint("Parallel", 19, 34),
    Sketcher.Constraint("Parallel", 30, 36),
    Sketcher.Constraint("Horizontal", 8, 2, 9, 1),
    Sketcher.Constraint("Horizontal", 7, 2, 10, 2),
    Sketcher.Constraint("Horizontal", 3, 2, 13, 1),
    Sketcher.Constraint("Horizontal", 5, 2, 15, 2),
    Sketcher.Constraint("Horizontal", 19, 2, 29, 1),
    Sketcher.Constraint("Horizontal", 21, 2, 31, 2),
    Sketcher.Constraint("Horizontal", 34, 2, 35, 2),
    Sketcher.Constraint("Vertical", 5, 2, 18, 2),
    Sketcher.Constraint("Vertical", 3, 2, 20, 1),
    Sketcher.Constraint("Vertical", 8, 2, 33, 1),
    Sketcher.Constraint("Equal", 5, 8),
    Sketcher.Constraint("Diameter", 25, Q("1.25 in")),
    Sketcher.Constraint("Diameter", 0, Q("6.1875 in")),
    Sketcher.Constraint("Diameter", 1, Q("0.196 in")),
    Sketcher.Constraint("Angle", 5, Q("-60 deg")),
    Sketcher.Constraint("Radius", 2, Q("2.46875 in")),
    Sketcher.Constraint("Radius", 4, Q("1.4375 in")),
    Sketcher.Constraint("DistanceX", 28, 3, 26, 3, Q("1.5 in")),
    Sketcher.Constraint("DistanceX", 6, 3, 1, 3, Q("0.75 in")),
    Sketcher.Constraint("DistanceY", 3, 2, 20, 1, Q("0.25 in")),
    Sketcher.Constraint("DistanceX", -1, 1, 1, 3, Q("1.3125 in")),
    Sketcher.Constraint("DistanceX", -1, 1, 17, 3, Q("2.625 in")),
    Sketcher.Constraint("DistanceY", 7, 2, 5, 2, Q("0.125 in")),
    Sketcher.Constraint("DistanceY", 4, 1, 6, 3, Q("5.166801 mm")),
    Sketcher.Constraint("DistanceY", 1, 3, -1, 1, Q("57.742244 mm")),
])
pad3 = body3.newObject("PartDesign::Pad", "Pad002")
pad3.Profile = sketch3
pad3.Length = Q("0.125 in")
pad3.Reversed = True
doc.recompute()

fillet3 = body3.newObject("PartDesign::Fillet", "Fillet002")
fillet3.Base = (pad3, edges_at(pad3, [
    (-36.374, 3.175, -11.113),
    (-62.626, 3.175, -11.113),
    (-34.063, 52.648, -11.113),
    (-20.937, 29.913, -11.113),
    (28.563, 55.823, -11.113),
    (15.437, 33.088, -11.113),
    (-15.437, 33.088, -11.113),
    (-28.563, 55.823, -11.113),
    (62.626, 3.175, -11.113),
    (36.374, 3.175, -11.113),
    (20.937, 29.913, -11.113),
    (34.063, 52.648, -11.113),
    (34.063, -52.648, -11.113),
    (20.937, -29.913, -11.113),
    (36.374, -3.175, -11.113),
    (62.626, -3.175, -11.113),
    (-28.563, -55.823, -11.113),
    (-15.437, -33.088, -11.113),
    (15.437, -33.088, -11.113),
    (28.563, -55.823, -11.113),
    (-62.626, -3.175, -11.113),
    (-36.374, -3.175, -11.113),
    (-20.937, -29.913, -11.113),
    (-34.063, -52.648, -11.113),
]))
fillet3.Radius = Q("0.25 in")
body4 = doc.addObject("PartDesign::Body", "Body003")

sketch4 = body4.newObject("Sketcher::SketchObject", "Sketch003")
sketch4.AttachmentSupport = (doc.getObject("XY_Plane003"), [""])
sketch4.MapMode = "FlatFace"
sketch4.AttachmentOffset = App.Placement(Vector(0, 0, 0.125 * 25.4), App.Rotation())
sketch4.addGeometry([
    Part.Circle(Vector(0, 0, 0), Vector(0, 0, 1), 78.6),
    Part.Circle(Vector(-33.3, 57.7, 0), Vector(0, 0, 1), 2.5),
    Part.Circle(Vector(33.3, 57.7, 0), Vector(0, 0, 1), 2.5),
    Part.Circle(Vector(-66.7, 0, 0), Vector(0, 0, 1), 2.5),
    Part.Circle(Vector(-33.3, -57.7, 0), Vector(0, 0, 1), 2.5),
    Part.Circle(Vector(0, 0, 0), Vector(0, 0, 1), 62.7),
    Part.Circle(Vector(66.7, 0, 0), Vector(0, 0, 1), 2.5),
    Part.Circle(Vector(33.3, -57.7, 0), Vector(0, 0, 1), 2.5),
], False)
sketch4.addConstraint([
    Sketcher.Constraint("Coincident", 0, 3, -1, 1),
    Sketcher.Constraint("Coincident", 5, 3, -1, 1),
    Sketcher.Constraint("Equal", 1, 2),
    Sketcher.Constraint("Equal", 2, 3),
    Sketcher.Constraint("Equal", 3, 4),
    Sketcher.Constraint("Equal", 4, 6),
    Sketcher.Constraint("Equal", 6, 7),
    Sketcher.Constraint("Symmetric", 2, 3, 4, 3, -1, 1),
    Sketcher.Constraint("Symmetric", 3, 3, 6, 3, -1, 1),
    Sketcher.Constraint("Symmetric", 1, 3, 7, 3, -1, 1),
    Sketcher.Constraint("Symmetric", 1, 3, 2, 3, -2),
    Sketcher.Constraint("PointOnObject", 3, 3, -1),
    Sketcher.Constraint("Diameter", 0, Q("6.1875 in")),
    Sketcher.Constraint("Diameter", 1, Q("0.196 in")),
    Sketcher.Constraint("Diameter", 5, Q("4.9375 in")),
    Sketcher.Constraint("DistanceX", 1, 3, -1, 1, Q("1.3125 in")),
    Sketcher.Constraint("DistanceX", 3, 3, -1, 1, Q("2.625 in")),
    Sketcher.Constraint("DistanceY", -1, 1, 1, 3, Q("57.742244 mm")),
])
pad4 = body4.newObject("PartDesign::Pad", "Pad003")
pad4.Profile = sketch4
pad4.Length = Q("0.125 in")

doc.recompute()
